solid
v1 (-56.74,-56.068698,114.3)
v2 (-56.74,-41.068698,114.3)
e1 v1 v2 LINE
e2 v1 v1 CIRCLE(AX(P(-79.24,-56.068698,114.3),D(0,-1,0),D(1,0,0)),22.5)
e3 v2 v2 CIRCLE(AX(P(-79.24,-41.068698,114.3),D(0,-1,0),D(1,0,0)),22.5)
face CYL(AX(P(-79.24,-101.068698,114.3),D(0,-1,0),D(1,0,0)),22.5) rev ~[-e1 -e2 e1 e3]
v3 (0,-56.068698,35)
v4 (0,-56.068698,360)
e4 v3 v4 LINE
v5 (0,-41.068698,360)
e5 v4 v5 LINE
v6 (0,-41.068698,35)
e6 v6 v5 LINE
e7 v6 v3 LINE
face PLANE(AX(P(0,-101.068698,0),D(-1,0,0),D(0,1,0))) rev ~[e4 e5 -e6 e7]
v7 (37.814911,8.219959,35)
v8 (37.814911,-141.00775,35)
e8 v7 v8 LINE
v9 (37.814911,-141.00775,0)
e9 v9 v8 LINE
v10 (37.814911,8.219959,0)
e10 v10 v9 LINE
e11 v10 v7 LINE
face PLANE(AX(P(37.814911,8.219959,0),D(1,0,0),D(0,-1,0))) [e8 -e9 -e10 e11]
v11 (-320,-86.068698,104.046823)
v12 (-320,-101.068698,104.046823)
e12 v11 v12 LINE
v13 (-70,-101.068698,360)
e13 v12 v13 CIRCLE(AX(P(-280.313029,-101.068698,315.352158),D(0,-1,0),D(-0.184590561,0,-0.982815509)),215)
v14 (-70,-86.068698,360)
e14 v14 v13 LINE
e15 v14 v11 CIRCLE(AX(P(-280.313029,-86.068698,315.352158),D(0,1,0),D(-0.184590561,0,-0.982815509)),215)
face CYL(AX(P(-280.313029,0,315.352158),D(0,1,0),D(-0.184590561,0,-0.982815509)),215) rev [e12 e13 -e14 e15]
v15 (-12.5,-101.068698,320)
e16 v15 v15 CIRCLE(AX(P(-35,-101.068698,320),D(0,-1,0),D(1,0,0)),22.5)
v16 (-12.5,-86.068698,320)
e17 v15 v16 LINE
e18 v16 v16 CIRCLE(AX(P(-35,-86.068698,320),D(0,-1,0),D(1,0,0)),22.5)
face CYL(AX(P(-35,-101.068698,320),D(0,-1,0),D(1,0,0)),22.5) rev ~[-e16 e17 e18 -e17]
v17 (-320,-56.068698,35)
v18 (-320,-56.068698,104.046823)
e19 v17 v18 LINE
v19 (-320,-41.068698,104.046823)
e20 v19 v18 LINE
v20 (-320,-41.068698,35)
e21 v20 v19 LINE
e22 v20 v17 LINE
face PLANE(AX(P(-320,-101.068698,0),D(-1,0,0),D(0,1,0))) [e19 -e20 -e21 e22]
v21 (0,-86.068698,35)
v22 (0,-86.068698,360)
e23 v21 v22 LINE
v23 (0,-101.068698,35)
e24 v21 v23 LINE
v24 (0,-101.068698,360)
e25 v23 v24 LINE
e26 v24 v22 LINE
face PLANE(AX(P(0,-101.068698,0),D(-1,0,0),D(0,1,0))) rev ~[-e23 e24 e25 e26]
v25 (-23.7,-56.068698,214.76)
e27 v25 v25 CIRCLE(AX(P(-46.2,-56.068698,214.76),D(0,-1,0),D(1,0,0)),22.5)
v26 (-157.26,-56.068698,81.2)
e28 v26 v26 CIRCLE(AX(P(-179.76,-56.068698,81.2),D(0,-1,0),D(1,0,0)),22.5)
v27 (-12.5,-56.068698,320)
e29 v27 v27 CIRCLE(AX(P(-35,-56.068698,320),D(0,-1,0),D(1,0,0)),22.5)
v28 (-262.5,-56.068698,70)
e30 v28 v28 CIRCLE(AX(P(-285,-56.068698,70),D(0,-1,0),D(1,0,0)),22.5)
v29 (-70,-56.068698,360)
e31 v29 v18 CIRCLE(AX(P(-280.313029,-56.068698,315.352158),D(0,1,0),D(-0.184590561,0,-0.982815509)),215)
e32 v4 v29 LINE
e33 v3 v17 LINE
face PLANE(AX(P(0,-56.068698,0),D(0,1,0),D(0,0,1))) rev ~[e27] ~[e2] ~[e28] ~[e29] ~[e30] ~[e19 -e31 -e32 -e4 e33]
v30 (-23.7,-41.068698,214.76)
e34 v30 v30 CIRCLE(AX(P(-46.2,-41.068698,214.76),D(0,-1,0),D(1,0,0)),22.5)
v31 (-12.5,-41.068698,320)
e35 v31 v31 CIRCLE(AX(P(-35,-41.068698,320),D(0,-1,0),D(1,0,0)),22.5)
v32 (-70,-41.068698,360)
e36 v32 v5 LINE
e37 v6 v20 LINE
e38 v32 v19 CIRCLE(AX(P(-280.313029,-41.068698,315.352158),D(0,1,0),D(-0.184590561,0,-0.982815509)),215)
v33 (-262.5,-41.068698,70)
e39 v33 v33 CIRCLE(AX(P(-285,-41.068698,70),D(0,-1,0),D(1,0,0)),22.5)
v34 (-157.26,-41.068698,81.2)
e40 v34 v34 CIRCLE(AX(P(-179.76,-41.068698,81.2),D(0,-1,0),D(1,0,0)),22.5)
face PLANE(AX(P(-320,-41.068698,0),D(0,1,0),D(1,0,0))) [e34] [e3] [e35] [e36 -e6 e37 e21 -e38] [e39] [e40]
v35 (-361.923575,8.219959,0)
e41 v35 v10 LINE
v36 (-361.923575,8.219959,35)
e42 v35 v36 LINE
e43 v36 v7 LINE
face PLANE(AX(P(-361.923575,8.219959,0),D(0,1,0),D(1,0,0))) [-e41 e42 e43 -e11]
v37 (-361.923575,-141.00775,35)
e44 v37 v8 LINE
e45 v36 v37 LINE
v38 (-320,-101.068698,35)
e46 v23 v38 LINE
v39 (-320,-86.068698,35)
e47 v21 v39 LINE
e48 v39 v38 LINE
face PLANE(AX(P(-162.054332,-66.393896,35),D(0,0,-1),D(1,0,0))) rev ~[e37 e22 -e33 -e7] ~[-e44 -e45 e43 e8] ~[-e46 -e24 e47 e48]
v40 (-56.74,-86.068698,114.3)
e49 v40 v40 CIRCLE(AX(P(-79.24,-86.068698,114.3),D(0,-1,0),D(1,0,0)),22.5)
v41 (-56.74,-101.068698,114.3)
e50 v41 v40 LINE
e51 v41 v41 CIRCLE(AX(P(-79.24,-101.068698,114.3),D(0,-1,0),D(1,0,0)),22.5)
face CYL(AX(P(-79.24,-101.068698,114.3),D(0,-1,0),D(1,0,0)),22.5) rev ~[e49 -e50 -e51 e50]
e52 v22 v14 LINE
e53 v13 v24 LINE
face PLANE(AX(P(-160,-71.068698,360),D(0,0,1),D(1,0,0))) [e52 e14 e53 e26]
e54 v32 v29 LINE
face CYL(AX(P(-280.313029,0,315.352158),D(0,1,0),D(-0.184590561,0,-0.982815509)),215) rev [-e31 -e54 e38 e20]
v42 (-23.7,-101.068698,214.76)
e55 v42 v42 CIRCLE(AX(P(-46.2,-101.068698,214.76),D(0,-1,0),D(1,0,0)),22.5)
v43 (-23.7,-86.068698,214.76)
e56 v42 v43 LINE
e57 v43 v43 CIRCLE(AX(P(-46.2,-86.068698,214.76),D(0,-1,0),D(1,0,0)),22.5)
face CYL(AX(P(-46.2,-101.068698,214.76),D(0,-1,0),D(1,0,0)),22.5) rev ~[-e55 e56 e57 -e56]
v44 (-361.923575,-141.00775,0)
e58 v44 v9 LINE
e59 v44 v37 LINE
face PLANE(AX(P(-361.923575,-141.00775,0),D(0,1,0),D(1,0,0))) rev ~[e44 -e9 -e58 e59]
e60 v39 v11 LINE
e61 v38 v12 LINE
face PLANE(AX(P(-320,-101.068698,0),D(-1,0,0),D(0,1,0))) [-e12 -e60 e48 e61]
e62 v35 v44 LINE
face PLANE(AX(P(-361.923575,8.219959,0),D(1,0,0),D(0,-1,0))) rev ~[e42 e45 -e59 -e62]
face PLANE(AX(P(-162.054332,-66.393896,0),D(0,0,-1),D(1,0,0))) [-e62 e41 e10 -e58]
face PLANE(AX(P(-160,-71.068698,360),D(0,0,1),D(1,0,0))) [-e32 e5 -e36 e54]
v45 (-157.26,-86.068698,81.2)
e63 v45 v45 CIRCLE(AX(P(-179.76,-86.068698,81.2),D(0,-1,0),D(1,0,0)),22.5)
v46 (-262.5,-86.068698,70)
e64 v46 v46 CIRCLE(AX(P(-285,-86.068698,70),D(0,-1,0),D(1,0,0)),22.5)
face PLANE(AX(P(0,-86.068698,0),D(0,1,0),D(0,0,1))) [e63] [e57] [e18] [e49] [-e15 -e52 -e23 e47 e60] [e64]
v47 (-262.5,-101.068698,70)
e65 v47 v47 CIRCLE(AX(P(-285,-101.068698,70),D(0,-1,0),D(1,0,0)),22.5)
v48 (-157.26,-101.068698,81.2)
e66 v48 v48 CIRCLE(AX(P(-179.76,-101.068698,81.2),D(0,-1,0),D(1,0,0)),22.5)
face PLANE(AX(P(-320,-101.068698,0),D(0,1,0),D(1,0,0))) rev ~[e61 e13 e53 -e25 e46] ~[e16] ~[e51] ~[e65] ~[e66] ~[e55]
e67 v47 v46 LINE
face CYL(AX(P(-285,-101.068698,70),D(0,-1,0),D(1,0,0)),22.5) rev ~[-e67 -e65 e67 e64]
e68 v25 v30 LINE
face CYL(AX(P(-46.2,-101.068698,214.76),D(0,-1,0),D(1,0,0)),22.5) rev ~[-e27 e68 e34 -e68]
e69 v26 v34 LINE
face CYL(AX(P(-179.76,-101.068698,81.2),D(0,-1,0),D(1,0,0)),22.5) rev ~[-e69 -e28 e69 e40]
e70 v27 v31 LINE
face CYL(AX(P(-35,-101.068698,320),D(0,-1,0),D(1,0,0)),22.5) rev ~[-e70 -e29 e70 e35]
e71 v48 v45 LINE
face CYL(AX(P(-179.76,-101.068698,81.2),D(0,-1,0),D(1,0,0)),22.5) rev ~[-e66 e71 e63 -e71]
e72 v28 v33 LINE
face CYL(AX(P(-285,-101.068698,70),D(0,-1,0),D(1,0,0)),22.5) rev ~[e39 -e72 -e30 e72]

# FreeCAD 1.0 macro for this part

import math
import FreeCAD as App
import Part
import Sketcher


def add_polygon(sketch, points):
    """Adds a closed chain of lines whose ends are joined by coincident constraints."""
    first, n = sketch.GeometryCount, len(points)
    for a, b in zip(points, points[1:] + points[:1]):
        sketch.addGeometry(Part.LineSegment(App.Vector(*a, 0), App.Vector(*b, 0)), False)
    for i in range(n):
        sketch.addConstraint(Sketcher.Constraint("Coincident", first + i, 2, first + (i + 1) % n, 1))

doc = App.newDocument("Part")
body = doc.addObject("PartDesign::Body", "Body")
body.AllowCompound = True

# Sketch on XY plane
sketch1 = body.newObject("Sketcher::SketchObject", "Sketch")
sketch1.AttachmentSupport = (doc.getObject("XY_Plane"), [""])
sketch1.MapMode = "FlatFace"
add_polygon(sketch1, [(-320, -41), (-320, -101), (0, -101), (0, -41)])  # lines 0-3
sketch1.addConstraint([
    Sketcher.Constraint("Vertical", 0),
    Sketcher.Constraint("Horizontal", 1),
    Sketcher.Constraint("Vertical", 2),
    Sketcher.Constraint("Horizontal", 3),
    Sketcher.Constraint("PointOnObject", 1, 2, -2),
    Sketcher.Constraint("DistanceX", 1, 1, 1, 2, 320.0),
    Sketcher.Constraint("DistanceY", 0, 2, 0, 1, 60.0),
    Sketcher.Constraint("DistanceY", 0, 2, -1, 1, 101.068698),
])
pad1 = body.newObject("PartDesign::Pad", "Pad")
pad1.Profile = sketch1
pad1.Length = 360

# Sketch on XZ plane
sketch2 = body.newObject("Sketcher::SketchObject", "Sketch001")
sketch2.AttachmentSupport = (doc.getObject("XZ_Plane"), [""])
sketch2.MapMode = "FlatFace"
sketch2.AttachmentOffset = App.Placement(App.Vector(0, 0, 101.068698), App.Rotation())
sketch2.addGeometry([
    Part.Circle(App.Vector(-35, 320, 0), App.Vector(0, 0, 1), 22),  # 0
    Part.Circle(App.Vector(-285, 70, 0), App.Vector(0, 0, 1), 22),  # 1
    Part.Circle(App.Vector(-180, 81, 0), App.Vector(0, 0, 1), 22),  # 2
    Part.Circle(App.Vector(-79, 114, 0), App.Vector(0, 0, 1), 22),  # 3
    Part.Circle(App.Vector(-46, 215, 0), App.Vector(0, 0, 1), 22),  # 4
], False)
sketch2.addConstraint([
    Sketcher.Constraint("Equal", 0, 1),
    Sketcher.Constraint("Equal", 1, 2),
    Sketcher.Constraint("Equal", 2, 3),
    Sketcher.Constraint("Equal", 3, 4),
    Sketcher.Constraint("Diameter", 0, 45.0),
    Sketcher.Constraint("DistanceX", 0, 3, -1, 1, 35.0),
    Sketcher.Constraint("DistanceY", -1, 1, 0, 3, 320.0),
    Sketcher.Constraint("DistanceX", 1, 3, -1, 1, 285.0),
    Sketcher.Constraint("DistanceY", -1, 1, 1, 3, 70.0),
    Sketcher.Constraint("DistanceY", -1, 1, 2, 3, 81.2),
    Sketcher.Constraint("DistanceY", -1, 1, 3, 3, 114.3),
    Sketcher.Constraint("DistanceX", 4, 3, -1, 1, 46.2),
    Sketcher.Constraint("DistanceX", 2, 3, -1, 1, 179.76),
    Sketcher.Constraint("DistanceX", 3, 3, -1, 1, 79.24),
    Sketcher.Constraint("DistanceY", -1, 1, 4, 3, 214.76),
])
pocket1 = body.newObject("PartDesign::Pocket", "Pocket")
pocket1.Profile = sketch2
pocket1.Type = "ThroughAll"

# Sketch on XZ plane
sketch3 = body.newObject("Sketcher::SketchObject", "Sketch002")
sketch3.AttachmentSupport = (doc.getObject("XZ_Plane"), [""])
sketch3.MapMode = "FlatFace"
sketch3.addGeometry([
    Part.LineSegment(App.Vector(-320, 360, 0), App.Vector(-320, 104, 0)),
    Part.ArcOfCircle(Part.Circle(App.Vector(-280, 315, 0), App.Vector(0, 0, 1), 215), math.radians(-101), math.radians(12)),
    Part.LineSegment(App.Vector(-70, 360, 0), App.Vector(-320, 360, 0)),
], False)
sketch3.addConstraint([
    Sketcher.Constraint("Coincident", 0, 2, 1, 1),
    Sketcher.Constraint("Coincident", 1, 2, 2, 1),
    Sketcher.Constraint("Coincident", 2, 2, 0, 1),
    Sketcher.Constraint("Vertical", 0),
    Sketcher.Constraint("Horizontal", 2),
    Sketcher.Constraint("Radius", 1, 215.0),
    Sketcher.Constraint("DistanceX", 2, 2, 2, 1, 250.0),
    Sketcher.Constraint("DistanceX", 0, 2, -1, 1, 320.0),
    Sketcher.Constraint("DistanceY", -1, 1, 1, 2, 360.0),
    Sketcher.Constraint("DistanceY", 0, 2, 0, 1, 255.953177),
])
pocket2 = body.newObject("PartDesign::Pocket", "Pocket001")
pocket2.Profile = sketch3
pocket2.Type = "ThroughAll"
pocket2.Reversed = True

# Sketch on YZ plane
sketch4 = body.newObject("Sketcher::SketchObject", "Sketch003")
sketch4.AttachmentSupport = (doc.getObject("YZ_Plane"), [""])
sketch4.MapMode = "FlatFace"
add_polygon(sketch4, [(-86, 360), (-86, 0), (-56, 0), (-56, 360)])  # lines 0-3
sketch4.addConstraint([
    Sketcher.Constraint("Vertical", 0),
    Sketcher.Constraint("Horizontal", 1),
    Sketcher.Constraint("Vertical", 2),
    Sketcher.Constraint("Horizontal", 3),
    Sketcher.Constraint("PointOnObject", 0, 2, -1),
    Sketcher.Constraint("DistanceX", 1, 1, 1, 2, 30.0),
    Sketcher.Constraint("DistanceY", 0, 2, 0, 1, 360.0),
    Sketcher.Constraint("DistanceX", 0, 2, -1, 1, 86.068698),
])
pocket3 = body.newObject("PartDesign::Pocket", "Pocket002")
pocket3.Profile = sketch4
pocket3.Type = "ThroughAll"

# Sketch on XY plane
sketch5 = body.newObject("Sketcher::SketchObject", "Sketch004")
sketch5.AttachmentSupport = (doc.getObject("XY_Plane"), [""])
sketch5.MapMode = "FlatFace"
add_polygon(sketch5, [(-362, -141), (-362, 8), (38, 8), (38, -141)])  # lines 0-3
sketch5.addConstraint([
    Sketcher.Constraint("Vertical", 0),
    Sketcher.Constraint("Horizontal", 1),
    Sketcher.Constraint("Vertical", 2),
    Sketcher.Constraint("Horizontal", 3),
    Sketcher.Constraint("DistanceY", 0, 1, 0, 2, 149.227709),
    Sketcher.Constraint("DistanceX", 1, 1, 1, 2, 399.738486),
    Sketcher.Constraint("DistanceY", -1, 1, 0, 2, 8.219959),
    Sketcher.Constraint("DistanceX", -1, 1, 1, 2, 37.814911),
])
pad2 = body.newObject("PartDesign::Pad", "Pad001")
pad2.Profile = sketch5
pad2.Length = 35

doc.recompute()
